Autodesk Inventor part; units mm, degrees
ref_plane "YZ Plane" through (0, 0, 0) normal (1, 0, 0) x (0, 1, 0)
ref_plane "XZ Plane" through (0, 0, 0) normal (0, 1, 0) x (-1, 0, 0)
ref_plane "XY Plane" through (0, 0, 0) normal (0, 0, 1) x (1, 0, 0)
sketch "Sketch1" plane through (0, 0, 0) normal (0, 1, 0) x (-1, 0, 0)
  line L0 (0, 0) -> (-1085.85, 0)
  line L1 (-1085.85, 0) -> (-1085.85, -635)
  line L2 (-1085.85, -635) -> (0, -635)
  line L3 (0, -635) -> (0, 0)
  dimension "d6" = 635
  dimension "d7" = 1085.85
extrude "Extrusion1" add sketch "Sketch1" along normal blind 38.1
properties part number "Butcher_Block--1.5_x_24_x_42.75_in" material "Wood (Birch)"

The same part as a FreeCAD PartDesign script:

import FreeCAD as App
import Part
import Sketcher
Q = App.Units.Quantity


def add_polygon(sketch, points):
    """Adds a closed chain of lines whose ends are joined by coincident constraints."""
    first, n = sketch.GeometryCount, len(points)
    for a, b in zip(points, points[1:] + points[:1]):
        sketch.addGeometry(Part.LineSegment(App.Vector(*a, 0), App.Vector(*b, 0)), False)
    for i in range(n):
        sketch.addConstraint(Sketcher.Constraint("Coincident", first + i, 2, first + (i + 1) % n, 1))

doc = App.newDocument("Part")
body = doc.addObject("PartDesign::Body", "Body")

sketch1 = body.newObject("Sketcher::SketchObject", "Sketch")
sketch1.AttachmentSupport = (doc.getObject("XZ_Plane"), [""])
sketch1.MapMode = "FlatFace"
add_polygon(sketch1, [(0, -635), (0, 0), (1086, 0), (1086, -635)])
sketch1.addConstraint([
    Sketcher.Constraint("Vertical", 0),
    Sketcher.Constraint("Horizontal", 1),
    Sketcher.Constraint("Vertical", 2),
    Sketcher.Constraint("Horizontal", 3),
    Sketcher.Constraint("Coincident", 0, 2, -1, 1),
    Sketcher.Constraint("DistanceY", 0, 1, 0, 2, Q("25 in")),
    Sketcher.Constraint("DistanceX", 1, 1, 1, 2, Q("42.75 in")),
])
pad1 = body.newObject("PartDesign::Pad", "Pad")
pad1.Profile = sketch1
pad1.Length = Q("1.5 in")
pad1.Reversed = True

doc.recompute()
